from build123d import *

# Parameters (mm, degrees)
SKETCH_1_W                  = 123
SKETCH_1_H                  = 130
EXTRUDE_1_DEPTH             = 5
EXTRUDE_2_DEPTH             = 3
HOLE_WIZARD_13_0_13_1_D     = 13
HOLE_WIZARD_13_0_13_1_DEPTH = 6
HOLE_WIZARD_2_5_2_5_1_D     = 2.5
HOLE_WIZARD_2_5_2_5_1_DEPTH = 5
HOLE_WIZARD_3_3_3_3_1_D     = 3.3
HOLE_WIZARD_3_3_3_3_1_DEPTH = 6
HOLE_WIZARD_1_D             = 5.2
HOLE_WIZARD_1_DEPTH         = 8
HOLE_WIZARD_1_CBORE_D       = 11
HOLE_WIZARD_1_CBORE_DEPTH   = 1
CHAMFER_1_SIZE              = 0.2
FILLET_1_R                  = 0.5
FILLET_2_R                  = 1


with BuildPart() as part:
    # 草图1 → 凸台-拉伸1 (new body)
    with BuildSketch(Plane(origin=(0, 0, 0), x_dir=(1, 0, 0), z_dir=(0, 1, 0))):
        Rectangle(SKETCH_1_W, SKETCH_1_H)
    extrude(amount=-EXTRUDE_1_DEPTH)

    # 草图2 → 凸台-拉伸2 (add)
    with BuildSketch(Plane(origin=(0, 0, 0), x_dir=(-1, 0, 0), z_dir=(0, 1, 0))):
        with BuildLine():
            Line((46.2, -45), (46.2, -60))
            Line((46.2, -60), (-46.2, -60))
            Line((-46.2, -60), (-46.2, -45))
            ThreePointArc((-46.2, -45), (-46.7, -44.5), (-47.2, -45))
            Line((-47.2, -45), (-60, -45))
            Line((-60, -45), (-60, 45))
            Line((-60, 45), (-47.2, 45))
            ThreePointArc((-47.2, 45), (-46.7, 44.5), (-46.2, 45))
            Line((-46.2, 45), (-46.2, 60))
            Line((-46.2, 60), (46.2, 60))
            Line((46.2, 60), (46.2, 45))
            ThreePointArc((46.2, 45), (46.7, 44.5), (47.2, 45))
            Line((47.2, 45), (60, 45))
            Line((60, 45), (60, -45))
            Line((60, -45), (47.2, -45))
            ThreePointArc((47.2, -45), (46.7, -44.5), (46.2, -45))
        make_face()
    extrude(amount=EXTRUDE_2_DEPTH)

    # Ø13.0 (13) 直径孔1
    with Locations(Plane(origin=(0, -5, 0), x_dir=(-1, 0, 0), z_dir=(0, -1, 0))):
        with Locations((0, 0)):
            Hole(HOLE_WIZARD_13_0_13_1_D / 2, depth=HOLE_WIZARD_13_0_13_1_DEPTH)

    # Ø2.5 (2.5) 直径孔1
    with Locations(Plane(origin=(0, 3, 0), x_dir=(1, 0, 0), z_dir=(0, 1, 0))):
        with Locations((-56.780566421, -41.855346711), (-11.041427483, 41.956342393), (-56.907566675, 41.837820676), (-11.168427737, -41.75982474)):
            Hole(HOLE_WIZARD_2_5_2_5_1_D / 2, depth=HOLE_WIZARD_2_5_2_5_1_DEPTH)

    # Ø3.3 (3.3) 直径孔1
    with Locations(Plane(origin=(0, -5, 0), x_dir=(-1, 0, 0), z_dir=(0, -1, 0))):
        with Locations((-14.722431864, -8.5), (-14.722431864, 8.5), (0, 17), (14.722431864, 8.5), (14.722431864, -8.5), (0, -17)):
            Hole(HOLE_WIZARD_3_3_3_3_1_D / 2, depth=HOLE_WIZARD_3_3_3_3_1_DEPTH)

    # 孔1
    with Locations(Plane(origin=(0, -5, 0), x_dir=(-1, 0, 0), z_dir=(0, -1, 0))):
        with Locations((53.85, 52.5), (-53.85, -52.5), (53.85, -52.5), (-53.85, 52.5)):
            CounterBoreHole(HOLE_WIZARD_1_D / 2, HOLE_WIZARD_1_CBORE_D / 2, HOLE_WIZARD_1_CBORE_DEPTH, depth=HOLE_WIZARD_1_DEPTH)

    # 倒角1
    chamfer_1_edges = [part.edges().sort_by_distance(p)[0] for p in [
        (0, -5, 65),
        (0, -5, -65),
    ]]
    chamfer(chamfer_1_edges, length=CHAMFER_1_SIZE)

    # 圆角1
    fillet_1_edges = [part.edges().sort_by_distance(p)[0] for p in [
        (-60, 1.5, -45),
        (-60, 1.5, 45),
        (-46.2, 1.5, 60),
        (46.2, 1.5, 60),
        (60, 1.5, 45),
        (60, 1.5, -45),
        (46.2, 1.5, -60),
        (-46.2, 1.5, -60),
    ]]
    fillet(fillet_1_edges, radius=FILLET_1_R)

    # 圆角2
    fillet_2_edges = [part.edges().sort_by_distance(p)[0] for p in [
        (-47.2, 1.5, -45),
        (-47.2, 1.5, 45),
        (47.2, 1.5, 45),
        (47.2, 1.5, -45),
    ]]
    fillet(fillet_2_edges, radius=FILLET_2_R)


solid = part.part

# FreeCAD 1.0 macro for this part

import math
import FreeCAD as App
import Part
import Sketcher

V = App.Vector


def edges_at(feature, points):
    """Names of the edges that pass closest to the given points."""
    edges = feature.Shape.Edges
    near = lambda p: min(range(len(edges)), key=lambda i: edges[i].distToShape(Part.Vertex(*p))[0])
    return sorted({f"Edge{near(p) + 1}" for p in points})


def add_polygon(sketch, points):
    """Adds a closed chain of lines whose ends are joined by coincident constraints."""
    first, n = sketch.GeometryCount, len(points)
    for a, b in zip(points, points[1:] + points[:1]):
        sketch.addGeometry(Part.LineSegment(App.Vector(*a, 0), App.Vector(*b, 0)), False)
    for i in range(n):
        sketch.addConstraint(Sketcher.Constraint("Coincident", first + i, 2, first + (i + 1) % n, 1))

doc = App.newDocument("Part")
body = doc.addObject("PartDesign::Body", "Body")

# Sketch on XZ plane
sketch1 = doc.addObject("Sketcher::SketchObject", "Sketch")
body.addObject(sketch1)
sketch1.AttachmentSupport = (doc.XZ_Plane, [""])
sketch1.MapMode = "FlatFace"
add_polygon(sketch1, [(-62, -65), (-62, 65), (62, 65), (62, -65)])  # lines 0-3
sketch1.addConstraint([
    Sketcher.Constraint("Vertical", 0),
    Sketcher.Constraint("Horizontal", 1),
    Sketcher.Constraint("Vertical", 2),
    Sketcher.Constraint("Horizontal", 3),
    Sketcher.Constraint("Symmetric", 0, 2, 2, 2, -1, 1),
    Sketcher.Constraint("DistanceX", 1, 1, 1, 2, 123.0),
    Sketcher.Constraint("DistanceY", 0, 1, 0, 2, 130.0),
])
pad1 = doc.addObject("PartDesign::Pad", "Pad")
body.addObject(pad1)
pad1.Profile = sketch1
pad1.Length = 5

# Sketch on XZ plane
sketch2 = doc.addObject("Sketcher::SketchObject", "Sketch001")
body.addObject(sketch2)
sketch2.AttachmentSupport = (doc.XZ_Plane, [""])
sketch2.MapMode = "FlatFace"
sketch2.addGeometry([
    Part.LineSegment(V(-46.2, -60, 0), V(-46.2, -45, 0)),  # 0
    Part.ArcOfCircle(Part.Circle(V(-46.7, -45, 0), V(0, 0, 1), 0.5), math.radians(0), math.radians(180)),  # 1
    Part.LineSegment(V(-47.2, -45, 0), V(-60, -45, 0)),  # 2
    Part.LineSegment(V(-60, -45, 0), V(-60, 45, 0)),  # 3
    Part.LineSegment(V(-60, 45, 0), V(-47.2, 45, 0)),  # 4
    Part.ArcOfCircle(Part.Circle(V(-46.7, 45, 0), V(0, 0, 1), 0.5), math.radians(180), math.radians(360)),  # 5
    Part.LineSegment(V(-46.2, 45, 0), V(-46.2, 60, 0)),  # 6
    Part.LineSegment(V(-46.2, 60, 0), V(46.2, 60, 0)),  # 7
    Part.LineSegment(V(46.2, 60, 0), V(46.2, 45, 0)),  # 8
    Part.ArcOfCircle(Part.Circle(V(46.7, 45, 0), V(0, 0, 1), 0.5), math.radians(180), math.radians(360)),  # 9
    Part.LineSegment(V(47.2, 45, 0), V(60, 45, 0)),  # 10
    Part.LineSegment(V(60, 45, 0), V(60, -45, 0)),  # 11
    Part.LineSegment(V(60, -45, 0), V(47.2, -45, 0)),  # 12
    Part.ArcOfCircle(Part.Circle(V(46.7, -45, 0), V(0, 0, 1), 0.5), math.radians(0), math.radians(180)),  # 13
    Part.LineSegment(V(46.2, -45, 0), V(46.2, -60, 0)),  # 14
    Part.LineSegment(V(46.2, -60, 0), V(-46.2, -60, 0)),  # 15
], False)
sketch2.addConstraint([
    Sketcher.Constraint("Tangent", 0, 2, 1, 1),
    Sketcher.Constraint("Coincident", 1, 2, 2, 1),
    Sketcher.Constraint("Coincident", 2, 2, 3, 1),
    Sketcher.Constraint("Coincident", 3, 2, 4, 1),
    Sketcher.Constraint("Coincident", 4, 2, 5, 1),
    Sketcher.Constraint("Tangent", 5, 2, 6, 1),
    Sketcher.Constraint("Coincident", 6, 2, 7, 1),
    Sketcher.Constraint("Coincident", 7, 2, 8, 1),
    Sketcher.Constraint("Tangent", 8, 2, 9, 1),
    Sketcher.Constraint("Coincident", 9, 2, 10, 1),
    Sketcher.Constraint("Coincident", 10, 2, 11, 1),
    Sketcher.Constraint("Coincident", 11, 2, 12, 1),
    Sketcher.Constraint("Coincident", 12, 2, 13, 1),
    Sketcher.Constraint("Tangent", 13, 2, 14, 1),
    Sketcher.Constraint("Coincident", 14, 2, 15, 1),
    Sketcher.Constraint("Coincident", 15, 2, 0, 1),
    Sketcher.Constraint("Vertical", 0),
    Sketcher.Constraint("Horizontal", 2),
    Sketcher.Constraint("Vertical", 3),
    Sketcher.Constraint("Horizontal", 4),
    Sketcher.Constraint("Vertical", 6),
    Sketcher.Constraint("Horizontal", 7),
    Sketcher.Constraint("Vertical", 8),
    Sketcher.Constraint("Horizontal", 10),
    Sketcher.Constraint("Vertical", 11),
    Sketcher.Constraint("Horizontal", 12),
    Sketcher.Constraint("Vertical", 14),
    Sketcher.Constraint("Horizontal", 15),
    Sketcher.Constraint("Equal", 1, 5),
    Sketcher.Constraint("Equal", 5, 9),
    Sketcher.Constraint("Equal", 9, 13),
    Sketcher.Constraint("Symmetric", 1, 3, 9, 3, -1, 1),
    Sketcher.Constraint("Symmetric", 5, 3, 13, 3, -1, 1),
    Sketcher.Constraint("Symmetric", 2, 2, 10, 2, -1, 1),
    Sketcher.Constraint("Symmetric", 5, 3, 9, 3, -2),
    Sketcher.Constraint("Horizontal", 0, 2, 1, 2),
    Sketcher.Constraint("Horizontal", 9, 3, 3, 2),
    Sketcher.Constraint("Horizontal", 2, 2, 11, 2),
    Sketcher.Constraint("Equal", 0, 6),
    Sketcher.Constraint("Radius", 1, 0.5),
    Sketcher.Constraint("DistanceY", 0, 1, 0, 2, 15.0),
    Sketcher.Constraint("DistanceY", 3, 1, 3, 2, 90.0),
    Sketcher.Constraint("DistanceX", 2, 2, 2, 1, 12.8),
    Sketcher.Constraint("DistanceX", 7, 1, 7, 2, 92.4),
])
pad2 = doc.addObject("PartDesign::Pad", "Pad001")
body.addObject(pad2)
pad2.Profile = sketch2
pad2.Length = 3
pad2.Reversed = True

# Sketch on XZ plane
sketch3 = doc.addObject("Sketcher::SketchObject", "Sketch002")
body.addObject(sketch3)
sketch3.AttachmentSupport = (doc.XZ_Plane, [""])
sketch3.MapMode = "FlatFace"
sketch3.AttachmentOffset = App.Placement(V(0, 0, 5), App.Rotation())
sketch3.addGeometry(Part.Circle(V(0, 0, 0), V(0, 0, 1), 6), False)
sketch3.addConstraint([
    Sketcher.Constraint("Coincident", 0, 3, -1, 1),
    Sketcher.Constraint("Diameter", 0, 13.0),
])
doc.recompute()
hole = doc.addObject("PartDesign::Hole", "Hole")
body.addObject(hole)
hole.Profile = sketch3
hole.ThreadType = "None"
hole.Diameter = 13
hole.DepthType = "Dimension"
hole.Depth = 6
hole.DrillPoint = "Flat"

# Sketch on XZ plane
sketch4 = doc.addObject("Sketcher::SketchObject", "Sketch003")
body.addObject(sketch4)
sketch4.AttachmentSupport = (doc.XZ_Plane, [""])
sketch4.MapMode = "FlatFace"
sketch4.AttachmentOffset = App.Placement(V(0, 0, -3), App.Rotation())
sketch4.addGeometry([
    Part.Circle(V(-56.8, 41.9, 0), V(0, 0, 1), 1.2),
    Part.Circle(V(-11, -42, 0), V(0, 0, 1), 1.2),
    Part.Circle(V(-56.9, -41.8, 0), V(0, 0, 1), 1.2),
    Part.Circle(V(-11.2, 41.8, 0), V(0, 0, 1), 1.2),
], False)
sketch4.addConstraint([
    Sketcher.Constraint("Equal", 0, 1),
    Sketcher.Constraint("Equal", 1, 2),
    Sketcher.Constraint("Equal", 2, 3),
    Sketcher.Constraint("Diameter", 0, 2.5),
    Sketcher.Constraint("DistanceX", 2, 3, 0, 3, 0.127),
    Sketcher.Constraint("DistanceX", 3, 3, 1, 3, 0.127),
    Sketcher.Constraint("DistanceY", 2, 3, -1, 1, 41.837821),
    Sketcher.Constraint("DistanceX", 0, 3, 1, 3, 45.739139),
    Sketcher.Constraint("DistanceY", 1, 3, 0, 3, 83.811689),
    Sketcher.Constraint("DistanceY", 1, 3, 2, 3, 0.118522),
    Sketcher.Constraint("DistanceY", 3, 3, 0, 3, 0.095522),
    Sketcher.Constraint("DistanceX", 0, 3, -1, 1, 56.780566),
])
doc.recompute()
hole2 = doc.addObject("PartDesign::Hole", "Hole001")
body.addObject(hole2)
hole2.Profile = sketch4
hole2.ThreadType = "None"
hole2.Diameter = 2.5
hole2.DepthType = "Dimension"
hole2.Depth = 5
hole2.DrillPoint = "Flat"
hole2.Reversed = True

# Sketch on XZ plane
sketch5 = doc.addObject("Sketcher::SketchObject", "Sketch004")
body.addObject(sketch5)
sketch5.AttachmentSupport = (doc.XZ_Plane, [""])
sketch5.MapMode = "FlatFace"
sketch5.AttachmentOffset = App.Placement(V(0, 0, 5), App.Rotation())
sketch5.addGeometry([
    Part.Circle(V(14.7, 8.5, 0), V(0, 0, 1), 1.6),  # 0
    Part.Circle(V(14.7, -8.5, 0), V(0, 0, 1), 1.6),  # 1
    Part.Circle(V(0, -17, 0), V(0, 0, 1), 1.6),  # 2
    Part.Circle(V(-14.7, -8.5, 0), V(0, 0, 1), 1.6),  # 3
    Part.Circle(V(-14.7, 8.5, 0), V(0, 0, 1), 1.6),  # 4
    Part.Circle(V(0, 17, 0), V(0, 0, 1), 1.6),  # 5
], False)
sketch5.addConstraint([
    Sketcher.Constraint("Equal", 0, 1),
    Sketcher.Constraint("Equal", 1, 2),
    Sketcher.Constraint("Equal", 2, 3),
    Sketcher.Constraint("Equal", 3, 4),
    Sketcher.Constraint("Equal", 4, 5),
    Sketcher.Constraint("Symmetric", 0, 3, 3, 3, -1, 1),
    Sketcher.Constraint("Symmetric", 1, 3, 4, 3, -1, 1),
    Sketcher.Constraint("Symmetric", 2, 3, 5, 3, -1, 1),
    Sketcher.Constraint("Symmetric", 1, 3, 3, 3, -2),
    Sketcher.Constraint("PointOnObject", 2, 3, -2),
    Sketcher.Constraint("Diameter", 0, 3.3),
    Sketcher.Constraint("DistanceY", 2, 3, -1, 1, 17.0),
    Sketcher.Constraint("DistanceY", 1, 3, 0, 3, 17.0),
    Sketcher.Constraint("DistanceX", -1, 1, 0, 3, 14.722432),
])
doc.recompute()
hole3 = doc.addObject("PartDesign::Hole", "Hole002")
body.addObject(hole3)
hole3.Profile = sketch5
hole3.ThreadType = "None"
hole3.Diameter = 3.3
hole3.DepthType = "Dimension"
hole3.Depth = 6
hole3.DrillPoint = "Flat"

# Sketch on XZ plane
sketch6 = doc.addObject("Sketcher::SketchObject", "Sketch005")
body.addObject(sketch6)
sketch6.AttachmentSupport = (doc.XZ_Plane, [""])
sketch6.MapMode = "FlatFace"
sketch6.AttachmentOffset = App.Placement(V(0, 0, 5), App.Rotation())
sketch6.addGeometry([
    Part.Circle(V(-53.9, -52.5, 0), V(0, 0, 1), 2.6),
    Part.Circle(V(53.9, 52.5, 0), V(0, 0, 1), 2.6),
    Part.Circle(V(-53.9, 52.5, 0), V(0, 0, 1), 2.6),
    Part.Circle(V(53.9, -52.5, 0), V(0, 0, 1), 2.6),
], False)
sketch6.addConstraint([
    Sketcher.Constraint("Equal", 0, 1),
    Sketcher.Constraint("Equal", 1, 2),
    Sketcher.Constraint("Equal", 2, 3),
    Sketcher.Constraint("Symmetric", 0, 3, 1, 3, -1, 1),
    Sketcher.Constraint("Symmetric", 2, 3, 3, 3, -1, 1),
    Sketcher.Constraint("Symmetric", 1, 3, 2, 3, -2),
    Sketcher.Constraint("Diameter", 0, 5.2),
    Sketcher.Constraint("DistanceY", 0, 3, 1, 3, 105.0),
    Sketcher.Constraint("DistanceX", 0, 3, 1, 3, 107.7),
])
doc.recompute()
hole4 = doc.addObject("PartDesign::Hole", "Hole003")
body.addObject(hole4)
hole4.Profile = sketch6
hole4.ThreadType = "None"
hole4.Diameter = 5.2
hole4.DepthType = "Dimension"
hole4.Depth = 8
hole4.DrillPoint = "Flat"
hole4.HoleCutType = "Counterbore"
hole4.HoleCutDiameter = 11
hole4.HoleCutDepth = 1
doc.recompute()

chamfer = doc.addObject("PartDesign::Chamfer", "Chamfer")
body.addObject(chamfer)
chamfer.Base = (hole4, edges_at(hole4, [(0, -5, 65), (0, -5, -65)]))
chamfer.Size = 0.2
doc.recompute()

fillet = doc.addObject("PartDesign::Fillet", "Fillet")
body.addObject(fillet)
fillet.Base = (chamfer, edges_at(chamfer, [
    (-60, 1.5, -45),
    (-60, 1.5, 45),
    (-46.2, 1.5, 60),
    (46.2, 1.5, 60),
    (60, 1.5, 45),
    (60, 1.5, -45),
    (46.2, 1.5, -60),
    (-46.2, 1.5, -60),
]))
fillet.Radius = 0.5
doc.recompute()

fillet2 = doc.addObject("PartDesign::Fillet", "Fillet001")
body.addObject(fillet2)
fillet2.Base = (fillet, edges_at(fillet, [
    (-47.2, 1.5, -45),
    (-47.2, 1.5, 45),
    (47.2, 1.5, 45),
    (47.2, 1.5, -45),
]))
fillet2.Radius = 1

doc.recompute()
